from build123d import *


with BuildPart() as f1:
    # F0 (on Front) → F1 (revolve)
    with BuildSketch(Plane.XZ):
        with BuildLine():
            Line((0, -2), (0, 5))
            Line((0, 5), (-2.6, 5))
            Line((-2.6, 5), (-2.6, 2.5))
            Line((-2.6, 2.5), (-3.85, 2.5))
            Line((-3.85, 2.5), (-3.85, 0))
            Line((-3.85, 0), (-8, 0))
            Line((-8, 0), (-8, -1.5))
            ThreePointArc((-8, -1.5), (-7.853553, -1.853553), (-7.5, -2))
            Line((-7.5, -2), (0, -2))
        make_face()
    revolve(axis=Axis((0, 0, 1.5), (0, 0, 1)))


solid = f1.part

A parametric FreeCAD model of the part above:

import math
import FreeCAD as App
import Part
import Sketcher

V = App.Vector
Q = App.Units.Quantity

doc = App.newDocument("Part")
body = doc.addObject("PartDesign::Body", "Body")

sketch1 = body.newObject("Sketcher::SketchObject", "Sketch")
sketch1.AttachmentSupport = (doc.getObject("XZ_Plane"), [""])
sketch1.MapMode = "FlatFace"
sketch1.addGeometry([
    Part.LineSegment(V(0, -2, 0), V(0, 5, 0)),
    Part.LineSegment(V(0, 5, 0), V(-2.6, 5, 0)),
    Part.LineSegment(V(-2.6, 5, 0), V(-2.6, 2.5, 0)),
    Part.LineSegment(V(-2.6, 2.5, 0), V(-3.9, 2.5, 0)),
    Part.LineSegment(V(-3.9, 2.5, 0), V(-3.9, 0, 0)),
    Part.LineSegment(V(-3.9, 0, 0), V(-8, 0, 0)),
    Part.LineSegment(V(-8, 0, 0), V(-8, -1.5, 0)),
    Part.ArcOfCircle(Part.Circle(V(-7.5, -1.5, 0), V(0, 0, 1), 0.5), math.radians(-180), math.radians(-90)),
    Part.LineSegment(V(-7.5, -2, 0), V(0, -2, 0)),
], False)
sketch1.addConstraint([
    Sketcher.Constraint("Coincident", 0, 2, 1, 1),
    Sketcher.Constraint("Coincident", 1, 2, 2, 1),
    Sketcher.Constraint("Coincident", 2, 2, 3, 1),
    Sketcher.Constraint("Coincident", 3, 2, 4, 1),
    Sketcher.Constraint("Coincident", 4, 2, 5, 1),
    Sketcher.Constraint("Coincident", 5, 2, 6, 1),
    Sketcher.Constraint("Coincident", 6, 2, 7, 1),
    Sketcher.Constraint("Coincident", 7, 2, 8, 1),
    Sketcher.Constraint("Coincident", 8, 2, 0, 1),
    Sketcher.Constraint("Vertical", 0),
    Sketcher.Constraint("Horizontal", 1),
    Sketcher.Constraint("Vertical", 2),
    Sketcher.Constraint("Horizontal", 3),
    Sketcher.Constraint("Vertical", 4),
    Sketcher.Constraint("Horizontal", 5),
    Sketcher.Constraint("Vertical", 6),
    Sketcher.Constraint("Horizontal", 8),
    Sketcher.Constraint("PointOnObject", 0, 2, -2),
    Sketcher.Constraint("PointOnObject", 4, 2, -1),
    Sketcher.Constraint("Horizontal", 7, 3, 6, 2),
    Sketcher.Constraint("Equal", 2, 4),
    Sketcher.Constraint("Radius", 7, Q("0.500001 mm")),
    Sketcher.Constraint("DistanceY", 0, 1, 0, 2, Q("7 mm")),
    Sketcher.Constraint("DistanceX", 1, 2, 1, 1, Q("2.6 mm")),
    Sketcher.Constraint("DistanceX", 8, 1, 8, 2, Q("7.5 mm")),
    Sketcher.Constraint("DistanceY", 2, 2, 2, 1, Q("2.5 mm")),
    Sketcher.Constraint("DistanceX", 5, 2, -1, 1, Q("8 mm")),
    Sketcher.Constraint("DistanceX", 3, 2, 3, 1, Q("1.25 mm")),
])
revolution = body.newObject("PartDesign::Revolution", "Revolution")
revolution.Profile = sketch1
revolution.ReferenceAxis = (sketch1, ["V_Axis"])
revolution.Angle = 360

doc.recompute()
